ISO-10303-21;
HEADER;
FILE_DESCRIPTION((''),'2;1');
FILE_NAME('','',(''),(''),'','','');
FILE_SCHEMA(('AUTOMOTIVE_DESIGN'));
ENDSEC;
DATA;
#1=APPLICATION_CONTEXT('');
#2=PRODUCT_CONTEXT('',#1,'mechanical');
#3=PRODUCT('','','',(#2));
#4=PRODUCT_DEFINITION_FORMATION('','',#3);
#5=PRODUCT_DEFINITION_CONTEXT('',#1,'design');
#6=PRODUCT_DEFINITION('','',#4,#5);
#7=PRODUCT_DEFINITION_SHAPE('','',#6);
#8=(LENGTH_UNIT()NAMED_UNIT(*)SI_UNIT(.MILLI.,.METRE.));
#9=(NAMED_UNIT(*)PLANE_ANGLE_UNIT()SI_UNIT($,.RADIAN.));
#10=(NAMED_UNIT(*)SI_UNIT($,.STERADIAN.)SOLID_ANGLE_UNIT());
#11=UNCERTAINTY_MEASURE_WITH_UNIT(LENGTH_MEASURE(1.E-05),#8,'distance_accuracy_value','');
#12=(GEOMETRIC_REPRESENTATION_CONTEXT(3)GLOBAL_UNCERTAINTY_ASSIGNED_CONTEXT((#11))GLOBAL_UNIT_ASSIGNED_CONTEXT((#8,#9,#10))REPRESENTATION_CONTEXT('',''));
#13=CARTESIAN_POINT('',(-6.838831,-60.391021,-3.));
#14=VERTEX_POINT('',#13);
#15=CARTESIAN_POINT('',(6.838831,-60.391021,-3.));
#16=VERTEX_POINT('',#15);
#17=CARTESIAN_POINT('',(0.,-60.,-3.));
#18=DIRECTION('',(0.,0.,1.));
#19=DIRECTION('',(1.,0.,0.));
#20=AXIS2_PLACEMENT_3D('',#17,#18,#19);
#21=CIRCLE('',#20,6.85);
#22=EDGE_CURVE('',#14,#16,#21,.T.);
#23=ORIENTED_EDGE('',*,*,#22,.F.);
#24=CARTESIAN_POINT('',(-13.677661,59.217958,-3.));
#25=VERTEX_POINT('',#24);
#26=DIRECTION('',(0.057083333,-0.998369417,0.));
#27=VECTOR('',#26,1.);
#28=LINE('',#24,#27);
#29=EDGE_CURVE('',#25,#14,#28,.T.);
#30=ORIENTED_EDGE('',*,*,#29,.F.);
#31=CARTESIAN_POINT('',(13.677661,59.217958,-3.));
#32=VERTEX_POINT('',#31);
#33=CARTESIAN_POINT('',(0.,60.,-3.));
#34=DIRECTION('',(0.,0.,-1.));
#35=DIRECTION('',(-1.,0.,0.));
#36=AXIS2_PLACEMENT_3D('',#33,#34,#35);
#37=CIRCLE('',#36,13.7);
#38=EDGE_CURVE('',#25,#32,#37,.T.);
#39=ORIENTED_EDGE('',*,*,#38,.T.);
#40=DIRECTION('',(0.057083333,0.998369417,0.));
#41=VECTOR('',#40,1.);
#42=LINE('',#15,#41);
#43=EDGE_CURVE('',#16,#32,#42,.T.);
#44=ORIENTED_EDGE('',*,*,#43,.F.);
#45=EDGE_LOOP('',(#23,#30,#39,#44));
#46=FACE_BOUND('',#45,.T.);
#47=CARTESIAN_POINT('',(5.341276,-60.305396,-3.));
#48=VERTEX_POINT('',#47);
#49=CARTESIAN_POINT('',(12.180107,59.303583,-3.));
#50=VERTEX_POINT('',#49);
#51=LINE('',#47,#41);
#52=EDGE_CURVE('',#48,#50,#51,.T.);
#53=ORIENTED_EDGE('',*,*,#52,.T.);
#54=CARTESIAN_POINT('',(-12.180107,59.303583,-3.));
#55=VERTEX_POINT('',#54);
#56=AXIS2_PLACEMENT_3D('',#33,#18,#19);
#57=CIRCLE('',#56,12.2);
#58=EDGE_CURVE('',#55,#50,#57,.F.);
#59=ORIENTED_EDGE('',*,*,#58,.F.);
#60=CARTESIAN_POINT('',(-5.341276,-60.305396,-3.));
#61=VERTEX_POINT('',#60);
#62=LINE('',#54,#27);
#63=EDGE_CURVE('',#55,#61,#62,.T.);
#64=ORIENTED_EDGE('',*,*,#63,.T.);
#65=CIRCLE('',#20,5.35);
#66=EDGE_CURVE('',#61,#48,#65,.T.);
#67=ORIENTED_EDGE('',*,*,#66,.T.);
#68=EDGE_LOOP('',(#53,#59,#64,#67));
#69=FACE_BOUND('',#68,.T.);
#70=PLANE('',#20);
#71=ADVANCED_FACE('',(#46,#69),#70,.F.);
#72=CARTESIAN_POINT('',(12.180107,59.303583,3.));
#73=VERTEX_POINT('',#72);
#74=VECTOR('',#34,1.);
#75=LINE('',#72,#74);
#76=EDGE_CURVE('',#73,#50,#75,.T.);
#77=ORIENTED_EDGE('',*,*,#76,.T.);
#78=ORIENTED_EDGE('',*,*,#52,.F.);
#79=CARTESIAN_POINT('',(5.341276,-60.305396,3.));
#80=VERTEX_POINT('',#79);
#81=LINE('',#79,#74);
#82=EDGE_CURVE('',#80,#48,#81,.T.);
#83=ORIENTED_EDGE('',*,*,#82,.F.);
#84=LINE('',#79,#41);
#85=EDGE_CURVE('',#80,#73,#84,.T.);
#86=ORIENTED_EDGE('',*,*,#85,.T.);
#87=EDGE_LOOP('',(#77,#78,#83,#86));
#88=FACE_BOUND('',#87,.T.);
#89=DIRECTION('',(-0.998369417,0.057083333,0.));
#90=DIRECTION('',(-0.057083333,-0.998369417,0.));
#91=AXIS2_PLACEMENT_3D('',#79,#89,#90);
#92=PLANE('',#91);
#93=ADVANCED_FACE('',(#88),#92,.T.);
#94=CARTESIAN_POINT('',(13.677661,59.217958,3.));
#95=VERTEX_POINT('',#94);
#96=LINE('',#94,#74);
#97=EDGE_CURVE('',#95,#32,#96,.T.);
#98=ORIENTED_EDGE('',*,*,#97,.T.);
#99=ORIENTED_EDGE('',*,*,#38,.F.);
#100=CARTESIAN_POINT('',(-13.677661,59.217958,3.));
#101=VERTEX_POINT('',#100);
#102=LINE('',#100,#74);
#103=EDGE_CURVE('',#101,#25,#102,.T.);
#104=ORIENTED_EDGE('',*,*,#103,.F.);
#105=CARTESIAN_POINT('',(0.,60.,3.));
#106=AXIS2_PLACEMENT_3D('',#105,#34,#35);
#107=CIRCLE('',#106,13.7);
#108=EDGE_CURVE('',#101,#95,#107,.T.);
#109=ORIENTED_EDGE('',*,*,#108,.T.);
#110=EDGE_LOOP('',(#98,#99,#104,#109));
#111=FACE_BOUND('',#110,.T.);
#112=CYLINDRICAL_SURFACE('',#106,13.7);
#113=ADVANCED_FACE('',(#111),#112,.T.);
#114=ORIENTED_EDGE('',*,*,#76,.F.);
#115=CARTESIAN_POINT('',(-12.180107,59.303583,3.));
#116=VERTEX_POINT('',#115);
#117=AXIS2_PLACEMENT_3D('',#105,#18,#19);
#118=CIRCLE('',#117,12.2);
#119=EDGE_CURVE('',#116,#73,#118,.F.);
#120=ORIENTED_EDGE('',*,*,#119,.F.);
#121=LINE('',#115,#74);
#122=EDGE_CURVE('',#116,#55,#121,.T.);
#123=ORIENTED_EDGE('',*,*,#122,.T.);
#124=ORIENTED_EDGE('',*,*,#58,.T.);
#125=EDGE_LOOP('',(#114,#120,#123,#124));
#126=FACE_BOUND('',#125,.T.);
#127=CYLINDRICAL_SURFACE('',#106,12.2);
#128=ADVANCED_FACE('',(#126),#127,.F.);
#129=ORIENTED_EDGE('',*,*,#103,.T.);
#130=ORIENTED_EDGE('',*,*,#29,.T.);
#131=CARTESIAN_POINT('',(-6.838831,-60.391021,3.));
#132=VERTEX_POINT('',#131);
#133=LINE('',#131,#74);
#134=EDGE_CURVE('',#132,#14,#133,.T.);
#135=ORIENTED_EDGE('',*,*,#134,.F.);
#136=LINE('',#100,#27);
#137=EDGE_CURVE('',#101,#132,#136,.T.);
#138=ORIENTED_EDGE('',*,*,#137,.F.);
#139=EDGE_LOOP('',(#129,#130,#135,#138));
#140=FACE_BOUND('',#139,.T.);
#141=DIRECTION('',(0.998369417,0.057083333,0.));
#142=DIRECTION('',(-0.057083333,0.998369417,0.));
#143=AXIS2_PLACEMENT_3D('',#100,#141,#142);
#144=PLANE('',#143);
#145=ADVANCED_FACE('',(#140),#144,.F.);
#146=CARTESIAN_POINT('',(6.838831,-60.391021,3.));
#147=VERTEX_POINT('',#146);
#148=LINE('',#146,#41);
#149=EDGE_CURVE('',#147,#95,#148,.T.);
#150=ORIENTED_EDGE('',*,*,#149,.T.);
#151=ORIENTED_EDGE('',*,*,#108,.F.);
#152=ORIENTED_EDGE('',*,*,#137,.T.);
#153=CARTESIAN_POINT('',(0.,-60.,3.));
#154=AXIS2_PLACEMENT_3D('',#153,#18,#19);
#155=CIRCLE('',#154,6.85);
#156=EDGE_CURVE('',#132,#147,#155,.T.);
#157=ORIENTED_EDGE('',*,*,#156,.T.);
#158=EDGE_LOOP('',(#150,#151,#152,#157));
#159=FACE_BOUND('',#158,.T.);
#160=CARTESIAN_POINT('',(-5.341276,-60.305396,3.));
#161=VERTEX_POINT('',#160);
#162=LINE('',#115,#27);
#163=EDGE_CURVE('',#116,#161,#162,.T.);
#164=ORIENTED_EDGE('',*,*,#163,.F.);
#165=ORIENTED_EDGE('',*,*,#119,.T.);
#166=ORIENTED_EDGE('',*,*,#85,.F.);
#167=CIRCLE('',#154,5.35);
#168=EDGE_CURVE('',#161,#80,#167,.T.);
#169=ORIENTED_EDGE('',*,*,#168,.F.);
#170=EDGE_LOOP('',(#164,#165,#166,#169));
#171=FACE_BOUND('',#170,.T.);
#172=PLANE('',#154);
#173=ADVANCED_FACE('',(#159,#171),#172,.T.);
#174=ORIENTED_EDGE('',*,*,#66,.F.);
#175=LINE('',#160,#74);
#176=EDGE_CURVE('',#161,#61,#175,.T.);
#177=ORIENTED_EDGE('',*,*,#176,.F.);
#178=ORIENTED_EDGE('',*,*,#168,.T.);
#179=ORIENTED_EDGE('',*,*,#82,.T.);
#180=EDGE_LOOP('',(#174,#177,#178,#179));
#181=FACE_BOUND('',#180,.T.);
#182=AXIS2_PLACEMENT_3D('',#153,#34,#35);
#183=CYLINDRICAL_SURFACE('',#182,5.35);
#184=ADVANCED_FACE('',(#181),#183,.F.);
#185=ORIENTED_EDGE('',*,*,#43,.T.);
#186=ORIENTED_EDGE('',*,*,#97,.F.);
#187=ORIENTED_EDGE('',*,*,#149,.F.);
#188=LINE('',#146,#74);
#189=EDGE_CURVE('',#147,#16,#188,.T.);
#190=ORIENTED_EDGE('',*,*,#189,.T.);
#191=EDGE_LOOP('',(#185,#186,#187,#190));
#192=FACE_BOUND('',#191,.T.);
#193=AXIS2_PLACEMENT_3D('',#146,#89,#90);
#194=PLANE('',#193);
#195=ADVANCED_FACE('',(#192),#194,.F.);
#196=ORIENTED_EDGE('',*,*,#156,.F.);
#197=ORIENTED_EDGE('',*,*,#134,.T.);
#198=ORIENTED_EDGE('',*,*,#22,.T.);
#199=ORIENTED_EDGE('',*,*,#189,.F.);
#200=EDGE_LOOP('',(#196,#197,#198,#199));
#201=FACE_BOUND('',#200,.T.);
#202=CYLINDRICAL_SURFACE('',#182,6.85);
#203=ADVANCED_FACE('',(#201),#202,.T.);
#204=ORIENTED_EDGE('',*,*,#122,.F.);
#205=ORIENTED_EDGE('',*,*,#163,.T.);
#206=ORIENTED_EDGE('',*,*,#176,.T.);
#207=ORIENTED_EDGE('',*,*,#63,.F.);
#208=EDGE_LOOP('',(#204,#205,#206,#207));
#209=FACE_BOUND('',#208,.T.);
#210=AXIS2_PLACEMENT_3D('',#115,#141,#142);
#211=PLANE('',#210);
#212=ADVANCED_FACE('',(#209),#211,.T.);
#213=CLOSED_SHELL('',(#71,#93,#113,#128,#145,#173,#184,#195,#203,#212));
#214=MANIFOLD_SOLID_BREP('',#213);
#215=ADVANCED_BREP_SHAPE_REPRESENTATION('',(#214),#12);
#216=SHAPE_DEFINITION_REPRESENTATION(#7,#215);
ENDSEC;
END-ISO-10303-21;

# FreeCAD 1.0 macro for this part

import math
import FreeCAD as App
import Part
import Sketcher

doc = App.newDocument("Part")
body = doc.addObject("PartDesign::Body", "Body")

sketch1 = body.newObject("Sketcher::SketchObject", "Sketch")
sketch1.AttachmentSupport = (doc.getObject("XY_Plane"), [""])
sketch1.MapMode = "FlatFace"
sketch1.addGeometry([
    Part.LineSegment(App.Vector(7, -60, 0), App.Vector(14, 59, 0)),
    Part.ArcOfCircle(Part.Circle(App.Vector(0, 60, 0), App.Vector(0, 0, 1), 14), math.radians(-3), math.radians(183)),
    Part.LineSegment(App.Vector(-14, 59, 0), App.Vector(-7, -60, 0)),
    Part.ArcOfCircle(Part.Circle(App.Vector(0, -60, 0), App.Vector(0, 0, 1), 7), math.radians(-177), math.radians(-3)),
    Part.LineSegment(App.Vector(12, 59, 0), App.Vector(5, -60, 0)),
    Part.ArcOfCircle(Part.Circle(App.Vector(0, -60, 0), App.Vector(0, 0, 1), 5), math.radians(-177), math.radians(-3)),
    Part.LineSegment(App.Vector(-5, -60, 0), App.Vector(-12, 59, 0)),
    Part.ArcOfCircle(Part.Circle(App.Vector(0, 60, 0), App.Vector(0, 0, 1), 12), math.radians(-3), math.radians(183)),
], False)
sketch1.addConstraint([
    Sketcher.Constraint("Tangent", 0, 2, 1, 1),
    Sketcher.Constraint("Tangent", 1, 2, 2, 1),
    Sketcher.Constraint("Tangent", 2, 2, 3, 1),
    Sketcher.Constraint("Tangent", 3, 2, 0, 1),
    Sketcher.Constraint("Tangent", 4, 2, 5, 2),
    Sketcher.Constraint("Tangent", 5, 1, 6, 1),
    Sketcher.Constraint("Tangent", 6, 2, 7, 2),
    Sketcher.Constraint("Tangent", 7, 1, 4, 1),
    Sketcher.Constraint("Coincident", 5, 3, 3, 3),
    Sketcher.Constraint("Coincident", 7, 3, 1, 3),
    Sketcher.Constraint("Symmetric", 1, 3, 3, 3, -1, 1),
    Sketcher.Constraint("PointOnObject", 1, 3, -2),
    Sketcher.Constraint("Parallel", 0, 4),
    Sketcher.Constraint("Radius", 1, 13.7),
    Sketcher.Constraint("Radius", 7, 12.2),
    Sketcher.Constraint("Radius", 3, 6.85),
    Sketcher.Constraint("DistanceY", -1, 1, 1, 3, 60.0),
])
pad1 = body.newObject("PartDesign::Pad", "Pad")
pad1.Profile = sketch1
pad1.Length = 6
pad1.Midplane = True

doc.recompute()
